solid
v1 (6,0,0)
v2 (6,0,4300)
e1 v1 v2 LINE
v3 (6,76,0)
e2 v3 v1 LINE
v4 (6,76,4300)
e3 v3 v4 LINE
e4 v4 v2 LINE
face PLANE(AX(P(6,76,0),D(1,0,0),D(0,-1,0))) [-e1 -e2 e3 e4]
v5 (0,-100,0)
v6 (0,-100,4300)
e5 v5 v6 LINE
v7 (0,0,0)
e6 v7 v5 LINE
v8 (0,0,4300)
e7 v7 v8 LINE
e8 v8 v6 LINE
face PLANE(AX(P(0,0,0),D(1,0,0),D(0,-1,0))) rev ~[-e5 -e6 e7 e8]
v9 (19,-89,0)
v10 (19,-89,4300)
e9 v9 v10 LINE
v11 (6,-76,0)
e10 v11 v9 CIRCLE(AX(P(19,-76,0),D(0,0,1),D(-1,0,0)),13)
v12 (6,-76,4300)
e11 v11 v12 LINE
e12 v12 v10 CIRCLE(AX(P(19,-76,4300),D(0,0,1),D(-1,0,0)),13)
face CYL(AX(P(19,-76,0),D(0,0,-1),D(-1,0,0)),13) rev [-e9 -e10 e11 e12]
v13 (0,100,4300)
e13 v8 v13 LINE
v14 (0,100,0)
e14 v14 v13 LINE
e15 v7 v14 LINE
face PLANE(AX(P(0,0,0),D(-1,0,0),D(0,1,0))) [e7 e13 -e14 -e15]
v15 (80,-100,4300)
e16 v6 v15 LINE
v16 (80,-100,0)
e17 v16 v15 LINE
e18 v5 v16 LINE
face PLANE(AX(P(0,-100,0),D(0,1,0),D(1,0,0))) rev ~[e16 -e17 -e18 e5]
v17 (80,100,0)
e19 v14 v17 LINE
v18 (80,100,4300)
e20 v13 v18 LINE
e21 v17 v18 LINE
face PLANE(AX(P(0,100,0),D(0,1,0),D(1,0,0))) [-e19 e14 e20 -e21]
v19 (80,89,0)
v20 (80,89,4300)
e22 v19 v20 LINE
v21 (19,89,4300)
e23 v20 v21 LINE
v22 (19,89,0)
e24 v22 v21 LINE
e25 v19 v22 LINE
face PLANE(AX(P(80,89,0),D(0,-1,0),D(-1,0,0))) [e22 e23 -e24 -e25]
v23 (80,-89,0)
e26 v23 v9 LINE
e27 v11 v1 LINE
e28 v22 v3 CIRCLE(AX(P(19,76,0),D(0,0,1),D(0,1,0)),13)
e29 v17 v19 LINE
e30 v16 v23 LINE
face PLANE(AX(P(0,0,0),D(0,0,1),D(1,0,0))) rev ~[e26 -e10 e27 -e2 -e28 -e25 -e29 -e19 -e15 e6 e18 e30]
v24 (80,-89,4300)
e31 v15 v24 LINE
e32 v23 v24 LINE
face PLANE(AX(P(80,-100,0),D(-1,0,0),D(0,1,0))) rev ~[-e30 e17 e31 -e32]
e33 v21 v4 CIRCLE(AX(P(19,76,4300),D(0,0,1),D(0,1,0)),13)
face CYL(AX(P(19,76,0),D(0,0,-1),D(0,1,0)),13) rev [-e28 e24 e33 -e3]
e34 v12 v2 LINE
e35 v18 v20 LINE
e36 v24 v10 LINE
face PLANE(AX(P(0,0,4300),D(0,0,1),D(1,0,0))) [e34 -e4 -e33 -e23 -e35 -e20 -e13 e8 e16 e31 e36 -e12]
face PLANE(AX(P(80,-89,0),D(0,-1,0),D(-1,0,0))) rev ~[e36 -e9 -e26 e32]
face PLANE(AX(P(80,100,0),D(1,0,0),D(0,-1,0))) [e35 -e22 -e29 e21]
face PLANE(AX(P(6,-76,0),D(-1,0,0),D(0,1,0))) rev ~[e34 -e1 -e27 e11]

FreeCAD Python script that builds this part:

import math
import FreeCAD as App
import Part
import Sketcher

V = App.Vector
Q = App.Units.Quantity

doc = App.newDocument("Part")
body = doc.addObject("PartDesign::Body", "Body")

# Sketch on XY plane
sketch1 = body.newObject("Sketcher::SketchObject", "Sketch")
sketch1.AttachmentSupport = (doc.getObject("XY_Plane"), [""])
sketch1.MapMode = "FlatFace"
sketch1.addGeometry([
    Part.LineSegment(V(0, 100, 0), V(0, -100, 0)),  # 0
    Part.LineSegment(V(0, -100, 0), V(80, -100, 0)),  # 1
    Part.LineSegment(V(80, -100, 0), V(80, -89, 0)),  # 2
    Part.LineSegment(V(80, -89, 0), V(19, -89, 0)),  # 3
    Part.ArcOfCircle(Part.Circle(V(19, -76, 0), V(0, 0, 1), 13), math.radians(180), math.radians(270)),  # 4
    Part.LineSegment(V(6, -76, 0), V(6, 76, 0)),  # 5
    Part.ArcOfCircle(Part.Circle(V(19, 76, 0), V(0, 0, 1), 13), math.radians(90), math.radians(180)),  # 6
    Part.LineSegment(V(19, 89, 0), V(80, 89, 0)),  # 7
    Part.LineSegment(V(80, 89, 0), V(80, 100, 0)),  # 8
    Part.LineSegment(V(80, 100, 0), V(0, 100, 0)),  # 9
], False)
sketch1.addConstraint([
    Sketcher.Constraint("Coincident", 0, 2, 1, 1),
    Sketcher.Constraint("Coincident", 1, 2, 2, 1),
    Sketcher.Constraint("Coincident", 2, 2, 3, 1),
    Sketcher.Constraint("Tangent", 3, 2, 4, 2),
    Sketcher.Constraint("Tangent", 4, 1, 5, 1),
    Sketcher.Constraint("Tangent", 5, 2, 6, 2),
    Sketcher.Constraint("Tangent", 6, 1, 7, 1),
    Sketcher.Constraint("Coincident", 7, 2, 8, 1),
    Sketcher.Constraint("Coincident", 8, 2, 9, 1),
    Sketcher.Constraint("Coincident", 9, 2, 0, 1),
    Sketcher.Constraint("Vertical", 0),
    Sketcher.Constraint("Horizontal", 1),
    Sketcher.Constraint("Vertical", 2),
    Sketcher.Constraint("Horizontal", 3),
    Sketcher.Constraint("Vertical", 5),
    Sketcher.Constraint("Horizontal", 7),
    Sketcher.Constraint("Vertical", 8),
    Sketcher.Constraint("Horizontal", 9),
    Sketcher.Constraint("Equal", 4, 6),
    Sketcher.Constraint("Symmetric", 0, 2, 9, 2, -1, 1),
    Sketcher.Constraint("Symmetric", 2, 2, 7, 2, -1),
    Sketcher.Constraint("Radius", 4, Q("13 mm")),
    Sketcher.Constraint("DistanceX", 1, 1, 1, 2, Q("80 mm")),
    Sketcher.Constraint("DistanceY", 2, 1, 2, 2, Q("11 mm")),
    Sketcher.Constraint("DistanceY", 0, 2, -1, 1, Q("100 mm")),
    Sketcher.Constraint("DistanceX", -1, 1, 4, 1, Q("6 mm")),
])
pad1 = body.newObject("PartDesign::Pad", "Pad")
pad1.Profile = sketch1
pad1.Length = 4300

doc.recompute()
